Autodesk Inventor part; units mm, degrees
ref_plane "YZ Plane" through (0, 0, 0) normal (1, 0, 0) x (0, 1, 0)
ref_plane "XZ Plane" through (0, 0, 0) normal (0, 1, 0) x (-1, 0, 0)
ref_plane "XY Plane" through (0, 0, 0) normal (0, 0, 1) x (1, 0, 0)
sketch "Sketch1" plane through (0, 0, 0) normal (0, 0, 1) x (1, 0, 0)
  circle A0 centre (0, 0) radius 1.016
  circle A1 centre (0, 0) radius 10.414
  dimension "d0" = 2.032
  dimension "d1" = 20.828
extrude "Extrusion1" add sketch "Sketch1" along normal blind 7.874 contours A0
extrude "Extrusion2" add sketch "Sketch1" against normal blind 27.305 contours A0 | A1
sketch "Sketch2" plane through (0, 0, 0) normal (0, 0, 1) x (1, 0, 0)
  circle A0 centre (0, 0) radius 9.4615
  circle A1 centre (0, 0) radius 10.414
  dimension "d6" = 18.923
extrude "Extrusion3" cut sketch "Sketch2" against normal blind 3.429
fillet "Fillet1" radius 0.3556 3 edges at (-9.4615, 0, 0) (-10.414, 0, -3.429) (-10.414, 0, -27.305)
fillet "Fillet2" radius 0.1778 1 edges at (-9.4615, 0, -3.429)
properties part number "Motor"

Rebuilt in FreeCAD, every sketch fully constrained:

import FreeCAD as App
import Part
import Sketcher
from FreeCAD import Vector
Q = App.Units.Quantity


def edges_at(feature, points):
    """Names of the edges that pass closest to the given points."""
    edges = feature.Shape.Edges
    near = lambda p: min(range(len(edges)), key=lambda i: edges[i].distToShape(Part.Vertex(*p))[0])
    return sorted({f"Edge{near(p) + 1}" for p in points})

doc = App.newDocument("Part")
body = doc.addObject("PartDesign::Body", "Body")

# Sketch on XY plane
sketch1 = body.newObject("Sketcher::SketchObject", "Sketch")
sketch1.AttachmentSupport = (doc.getObject("XY_Plane"), [""])
sketch1.MapMode = "FlatFace"
sketch1.addGeometry(Part.Circle(Vector(0, 0, 0), Vector(0, 0, 1), 1.016), False)
sketch1.addConstraint(Sketcher.Constraint("Coincident", 0, 3, -1, 1))
sketch1.addConstraint(Sketcher.Constraint("Diameter", 0, Q("0.08 in")))
pad1 = body.newObject("PartDesign::Pad", "Pad")
pad1.Profile = sketch1
pad1.Length = Q("0.31 in")

# Sketch on XY plane
sketch2 = body.newObject("Sketcher::SketchObject", "Sketch001")
sketch2.AttachmentSupport = (doc.getObject("XY_Plane"), [""])
sketch2.MapMode = "FlatFace"
sketch2.addGeometry(Part.Circle(Vector(0, 0, 0), Vector(0, 0, 1), 10.414), False)
sketch2.addConstraint(Sketcher.Constraint("Coincident", 0, 3, -1, 1))
sketch2.addConstraint(Sketcher.Constraint("Diameter", 0, Q("0.82 in")))
pad2 = body.newObject("PartDesign::Pad", "Pad001")
pad2.Profile = sketch2
pad2.Length = Q("1.075 in")
pad2.Reversed = True

# Sketch on XY plane
sketch3 = body.newObject("Sketcher::SketchObject", "Sketch002")
sketch3.AttachmentSupport = (doc.getObject("XY_Plane"), [""])
sketch3.MapMode = "FlatFace"
sketch3.addGeometry(Part.Circle(Vector(0, 0, 0), Vector(0, 0, 1), 10.414), False)
sketch3.addGeometry(Part.Circle(Vector(0, 0, 0), Vector(0, 0, 1), 9.4615), False)
sketch3.addConstraint(Sketcher.Constraint("Coincident", 0, 3, -1, 1))
sketch3.addConstraint(Sketcher.Constraint("Coincident", 1, 3, -1, 1))
sketch3.addConstraint(Sketcher.Constraint("Diameter", 1, Q("0.745 in")))
sketch3.addConstraint(Sketcher.Constraint("Diameter", 0, Q("0.82 in")))
pocket1 = body.newObject("PartDesign::Pocket", "Pocket")
pocket1.Profile = sketch3
pocket1.Length = Q("0.135 in")
doc.recompute()

fillet = body.newObject("PartDesign::Fillet", "Fillet")
fillet.Base = (pocket1, edges_at(pocket1, [(-9.461, 0, 0), (-10.414, 0, -3.429), (-10.414, 0, -27.305)]))
fillet.Radius = Q("0.014 in")
doc.recompute()

fillet2 = body.newObject("PartDesign::Fillet", "Fillet001")
fillet2.Base = (fillet, edges_at(fillet, [(-9.461, 0, -3.429)]))
fillet2.Radius = Q("0.007 in")

doc.recompute()
